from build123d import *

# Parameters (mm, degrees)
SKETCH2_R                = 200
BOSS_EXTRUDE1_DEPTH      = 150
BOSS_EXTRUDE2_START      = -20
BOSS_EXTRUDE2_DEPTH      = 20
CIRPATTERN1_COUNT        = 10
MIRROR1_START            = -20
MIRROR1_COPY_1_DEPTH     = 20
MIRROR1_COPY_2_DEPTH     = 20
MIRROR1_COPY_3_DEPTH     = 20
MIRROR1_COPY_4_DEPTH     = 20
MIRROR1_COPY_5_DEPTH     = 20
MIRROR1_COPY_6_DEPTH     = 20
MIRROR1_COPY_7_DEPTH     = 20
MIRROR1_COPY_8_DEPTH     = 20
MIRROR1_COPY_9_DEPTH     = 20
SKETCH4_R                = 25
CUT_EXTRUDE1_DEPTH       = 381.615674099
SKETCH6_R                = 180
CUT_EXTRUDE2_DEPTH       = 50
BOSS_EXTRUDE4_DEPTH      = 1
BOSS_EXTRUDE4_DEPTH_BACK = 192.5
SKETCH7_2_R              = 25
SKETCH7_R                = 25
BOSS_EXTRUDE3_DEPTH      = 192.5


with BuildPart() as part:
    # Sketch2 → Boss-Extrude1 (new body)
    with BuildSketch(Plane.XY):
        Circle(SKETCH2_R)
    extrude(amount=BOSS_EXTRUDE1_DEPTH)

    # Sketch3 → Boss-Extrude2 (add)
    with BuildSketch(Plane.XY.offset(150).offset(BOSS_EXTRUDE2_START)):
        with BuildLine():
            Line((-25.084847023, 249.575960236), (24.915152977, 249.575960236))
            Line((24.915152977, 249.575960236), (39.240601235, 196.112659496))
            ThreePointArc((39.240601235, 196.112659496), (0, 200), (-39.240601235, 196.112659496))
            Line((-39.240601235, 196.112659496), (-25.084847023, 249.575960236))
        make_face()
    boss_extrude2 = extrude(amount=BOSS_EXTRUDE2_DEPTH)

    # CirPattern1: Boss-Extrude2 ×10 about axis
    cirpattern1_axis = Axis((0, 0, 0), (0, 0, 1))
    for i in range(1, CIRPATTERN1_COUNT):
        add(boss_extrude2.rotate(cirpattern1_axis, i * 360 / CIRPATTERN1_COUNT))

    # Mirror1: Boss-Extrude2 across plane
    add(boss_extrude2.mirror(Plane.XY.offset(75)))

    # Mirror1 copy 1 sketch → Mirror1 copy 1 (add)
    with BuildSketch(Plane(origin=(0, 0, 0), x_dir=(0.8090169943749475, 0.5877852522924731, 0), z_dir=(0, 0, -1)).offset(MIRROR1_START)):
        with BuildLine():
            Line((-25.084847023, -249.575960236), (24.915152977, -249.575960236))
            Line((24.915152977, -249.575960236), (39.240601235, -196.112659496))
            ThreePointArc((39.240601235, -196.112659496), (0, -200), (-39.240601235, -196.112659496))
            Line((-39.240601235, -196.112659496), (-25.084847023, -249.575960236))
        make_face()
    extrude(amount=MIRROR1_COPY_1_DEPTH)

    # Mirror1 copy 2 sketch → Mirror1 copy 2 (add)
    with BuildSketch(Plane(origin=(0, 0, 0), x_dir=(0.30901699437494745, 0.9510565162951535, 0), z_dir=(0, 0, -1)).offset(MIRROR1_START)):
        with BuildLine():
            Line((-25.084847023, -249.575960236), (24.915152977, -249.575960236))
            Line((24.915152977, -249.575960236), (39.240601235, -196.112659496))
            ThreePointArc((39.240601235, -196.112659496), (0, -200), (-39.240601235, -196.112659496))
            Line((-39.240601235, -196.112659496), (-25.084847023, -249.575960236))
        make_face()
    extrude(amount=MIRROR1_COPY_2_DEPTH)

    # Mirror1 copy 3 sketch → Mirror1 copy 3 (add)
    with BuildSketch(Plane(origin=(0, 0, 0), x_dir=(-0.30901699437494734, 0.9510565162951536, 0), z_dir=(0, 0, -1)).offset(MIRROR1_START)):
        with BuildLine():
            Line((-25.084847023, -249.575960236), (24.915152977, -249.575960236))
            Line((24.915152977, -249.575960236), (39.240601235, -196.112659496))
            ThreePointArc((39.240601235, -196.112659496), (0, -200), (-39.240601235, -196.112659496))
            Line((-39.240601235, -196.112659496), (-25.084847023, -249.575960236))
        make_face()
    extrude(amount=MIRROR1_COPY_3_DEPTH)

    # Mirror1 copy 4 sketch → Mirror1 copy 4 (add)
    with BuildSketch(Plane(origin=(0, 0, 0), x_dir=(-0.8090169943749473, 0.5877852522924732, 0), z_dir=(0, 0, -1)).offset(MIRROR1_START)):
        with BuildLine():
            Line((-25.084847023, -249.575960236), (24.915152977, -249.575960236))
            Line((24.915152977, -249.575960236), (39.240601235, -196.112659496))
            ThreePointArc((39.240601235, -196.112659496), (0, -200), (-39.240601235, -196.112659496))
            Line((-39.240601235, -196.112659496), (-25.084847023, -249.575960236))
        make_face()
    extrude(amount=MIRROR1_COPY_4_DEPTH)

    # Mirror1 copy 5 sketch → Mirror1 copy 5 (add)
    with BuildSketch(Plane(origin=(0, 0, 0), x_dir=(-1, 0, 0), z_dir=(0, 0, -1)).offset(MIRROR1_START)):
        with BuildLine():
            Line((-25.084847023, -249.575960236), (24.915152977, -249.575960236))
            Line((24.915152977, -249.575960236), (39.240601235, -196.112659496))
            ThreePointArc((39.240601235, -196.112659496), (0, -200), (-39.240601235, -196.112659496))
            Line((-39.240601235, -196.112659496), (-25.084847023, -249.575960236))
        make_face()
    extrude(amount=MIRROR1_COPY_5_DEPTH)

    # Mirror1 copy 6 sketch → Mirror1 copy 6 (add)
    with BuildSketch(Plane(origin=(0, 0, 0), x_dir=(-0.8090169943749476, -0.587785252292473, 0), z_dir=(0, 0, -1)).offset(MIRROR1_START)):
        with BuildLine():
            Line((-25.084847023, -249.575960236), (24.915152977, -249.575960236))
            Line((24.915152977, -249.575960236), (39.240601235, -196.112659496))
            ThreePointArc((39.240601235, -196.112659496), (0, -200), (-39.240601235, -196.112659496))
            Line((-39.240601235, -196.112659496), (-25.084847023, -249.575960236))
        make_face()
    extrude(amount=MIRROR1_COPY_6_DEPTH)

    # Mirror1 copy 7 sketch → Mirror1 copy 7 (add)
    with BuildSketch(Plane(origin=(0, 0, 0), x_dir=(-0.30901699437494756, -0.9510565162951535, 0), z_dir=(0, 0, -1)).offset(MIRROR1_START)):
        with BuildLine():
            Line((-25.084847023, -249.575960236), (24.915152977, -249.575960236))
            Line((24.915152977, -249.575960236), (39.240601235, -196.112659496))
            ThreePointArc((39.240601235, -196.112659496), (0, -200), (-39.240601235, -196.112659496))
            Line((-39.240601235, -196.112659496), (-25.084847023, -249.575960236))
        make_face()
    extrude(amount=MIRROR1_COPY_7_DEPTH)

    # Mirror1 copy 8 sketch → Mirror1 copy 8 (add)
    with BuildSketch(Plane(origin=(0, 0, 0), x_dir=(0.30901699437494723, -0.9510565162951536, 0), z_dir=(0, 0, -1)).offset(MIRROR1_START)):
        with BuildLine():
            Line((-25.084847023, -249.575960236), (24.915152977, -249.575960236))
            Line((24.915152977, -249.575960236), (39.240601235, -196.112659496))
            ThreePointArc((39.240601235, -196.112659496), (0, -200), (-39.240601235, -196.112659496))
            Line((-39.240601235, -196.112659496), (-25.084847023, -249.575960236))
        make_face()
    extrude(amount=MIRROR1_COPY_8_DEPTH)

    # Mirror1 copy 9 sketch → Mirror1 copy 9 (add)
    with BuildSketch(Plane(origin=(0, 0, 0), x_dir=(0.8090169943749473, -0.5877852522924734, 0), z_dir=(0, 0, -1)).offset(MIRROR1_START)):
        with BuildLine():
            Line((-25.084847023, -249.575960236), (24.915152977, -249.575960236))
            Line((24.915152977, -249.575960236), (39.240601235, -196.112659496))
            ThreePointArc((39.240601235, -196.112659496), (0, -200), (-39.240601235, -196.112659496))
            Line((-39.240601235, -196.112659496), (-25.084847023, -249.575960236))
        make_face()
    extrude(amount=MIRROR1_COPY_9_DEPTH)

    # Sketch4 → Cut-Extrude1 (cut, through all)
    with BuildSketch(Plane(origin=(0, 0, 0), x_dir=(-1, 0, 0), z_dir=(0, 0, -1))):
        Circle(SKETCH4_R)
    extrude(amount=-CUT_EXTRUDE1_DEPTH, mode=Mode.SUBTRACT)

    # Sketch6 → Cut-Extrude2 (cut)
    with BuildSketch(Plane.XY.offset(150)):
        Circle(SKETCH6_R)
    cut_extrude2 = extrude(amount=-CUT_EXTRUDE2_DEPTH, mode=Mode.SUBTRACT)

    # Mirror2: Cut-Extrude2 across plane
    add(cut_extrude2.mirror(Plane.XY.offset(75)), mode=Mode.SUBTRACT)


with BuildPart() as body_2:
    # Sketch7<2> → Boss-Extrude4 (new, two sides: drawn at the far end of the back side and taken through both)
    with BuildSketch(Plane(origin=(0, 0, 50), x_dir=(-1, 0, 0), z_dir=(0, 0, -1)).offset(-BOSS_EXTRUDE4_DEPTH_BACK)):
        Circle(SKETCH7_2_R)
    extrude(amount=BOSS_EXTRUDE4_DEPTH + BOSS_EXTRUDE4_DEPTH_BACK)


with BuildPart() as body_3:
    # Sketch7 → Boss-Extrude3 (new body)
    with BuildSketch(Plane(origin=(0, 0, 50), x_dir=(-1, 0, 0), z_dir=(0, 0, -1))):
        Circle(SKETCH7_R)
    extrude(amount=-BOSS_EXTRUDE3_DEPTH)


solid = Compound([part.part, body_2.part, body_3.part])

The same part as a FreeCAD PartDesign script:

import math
import FreeCAD as App
import Part
import Sketcher
Q = App.Units.Quantity

doc = App.newDocument("Part")
body = doc.addObject("PartDesign::Body", "Body")

sketch1 = body.newObject("Sketcher::SketchObject", "Sketch")
sketch1.AttachmentSupport = (doc.getObject("XY_Plane"), [""])
sketch1.MapMode = "FlatFace"
sketch1.addGeometry(Part.Circle(App.Vector(0, 0, 0), App.Vector(0, 0, 1), 200), False)
sketch1.addConstraint([
    Sketcher.Constraint("Coincident", 0, 3, -1, 1),
    Sketcher.Constraint("Diameter", 0, 400.0),
])
pad1 = body.newObject("PartDesign::Pad", "Pad")
pad1.Profile = sketch1
pad1.Length = 150

sketch2 = body.newObject("Sketcher::SketchObject", "Sketch001")
sketch2.AttachmentSupport = (doc.getObject("XY_Plane"), [""])
sketch2.MapMode = "FlatFace"
sketch2.AttachmentOffset = App.Placement(App.Vector(0, 0, 130), App.Rotation())
sketch2.addGeometry([
    Part.LineSegment(App.Vector(25, 250, 0), App.Vector(-25, 250, 0)),
    Part.LineSegment(App.Vector(-25, 250, 0), App.Vector(-39, 196, 0)),
    Part.ArcOfCircle(Part.Circle(App.Vector(0, 0, 0), App.Vector(0, 0, 1), 200), math.radians(79), math.radians(101)),
    Part.LineSegment(App.Vector(39, 196, 0), App.Vector(25, 250, 0)),
], False)
sketch2.addConstraint([
    Sketcher.Constraint("Coincident", 0, 2, 1, 1),
    Sketcher.Constraint("Coincident", 1, 2, 2, 2),
    Sketcher.Constraint("Coincident", 2, 1, 3, 1),
    Sketcher.Constraint("Coincident", 3, 2, 0, 1),
    Sketcher.Constraint("Horizontal", 0),
    Sketcher.Constraint("Coincident", 2, 3, -1, 1),
    Sketcher.Constraint("Horizontal", 1, 2, 2, 1),
    Sketcher.Constraint("Radius", 2, 200.0),
    Sketcher.Constraint("DistanceX", 0, 2, 0, 1, 50.0),
    Sketcher.Constraint("Angle", 3, Q("105 deg")),
    Sketcher.Constraint("DistanceX", 1, 2, -1, 1, 39.240601),
    Sketcher.Constraint("DistanceY", 1, 2, 0, 2, 53.463301),
])
pad2 = body.newObject("PartDesign::Pad", "Pad001")
pad2.Profile = sketch2
pad2.Length = 20
doc.recompute()

polarpattern = body.newObject("PartDesign::PolarPattern", "PolarPattern")
polarpattern.Originals = [pad2]
polarpattern.Axis = (doc.getObject("Z_Axis"), [""])
polarpattern.Angle = 360
polarpattern.Occurrences = 10
body.Tip = polarpattern
doc.recompute()

datumplane = body.newObject("PartDesign::Plane", "DatumPlane")
datumplane.AttachmentSupport = (doc.getObject("XY_Plane"), [""])
datumplane.MapMode = "FlatFace"
datumplane.AttachmentOffset = App.Placement(App.Vector(0, 0, 75), App.Rotation())
mirrored = body.newObject("PartDesign::Mirrored", "Mirrored")
mirrored.Originals = [pad2]
mirrored.MirrorPlane = (datumplane, [""])
body.Tip = mirrored

sketch3 = body.newObject("Sketcher::SketchObject", "Sketch002")
sketch3.AttachmentSupport = (doc.getObject("XY_Plane"), [""])
sketch3.MapMode = "FlatFace"
sketch3.AttachmentOffset = App.Placement(App.Vector(0, 0, 20), App.Rotation())
sketch3.addGeometry([
    Part.LineSegment(App.Vector(-167, 187, 0), App.Vector(-127, 217, 0)),
    Part.LineSegment(App.Vector(-127, 217, 0), App.Vector(-84, 182, 0)),
    Part.ArcOfCircle(Part.Circle(App.Vector(0, 0, 0), App.Vector(0, 0, 1), 200), math.radians(115), math.radians(137)),
    Part.LineSegment(App.Vector(-147, 136, 0), App.Vector(-167, 187, 0)),
], False)
sketch3.addConstraint([
    Sketcher.Constraint("Coincident", 0, 2, 1, 1),
    Sketcher.Constraint("Coincident", 1, 2, 2, 1),
    Sketcher.Constraint("Coincident", 2, 2, 3, 1),
    Sketcher.Constraint("Coincident", 3, 2, 0, 1),
    Sketcher.Constraint("Coincident", 2, 3, -1, 1),
    Sketcher.Constraint("Radius", 2, 200.0),
    Sketcher.Constraint("Angle", 0, Q("36 deg")),
    Sketcher.Constraint("Angle", 1, Q("-39 deg")),
    Sketcher.Constraint("Distance", 0, 50.0),
    Sketcher.Constraint("Distance", 1, 55.349282),
    Sketcher.Constraint("DistanceY", -1, 1, 1, 2, 181.723521),
    Sketcher.Constraint("Distance", 3, 55.305605),
])
pad3 = body.newObject("PartDesign::Pad", "Pad002")
pad3.Profile = sketch3
pad3.Length = 20
pad3.Reversed = True

sketch4 = body.newObject("Sketcher::SketchObject", "Sketch003")
sketch4.AttachmentSupport = (doc.getObject("XY_Plane"), [""])
sketch4.MapMode = "FlatFace"
sketch4.AttachmentOffset = App.Placement(App.Vector(0, 0, 20), App.Rotation())
sketch4.addGeometry([
    Part.LineSegment(App.Vector(-245, 53, 0), App.Vector(-230, 101, 0)),
    Part.LineSegment(App.Vector(-230, 101, 0), App.Vector(-174, 98, 0)),
    Part.ArcOfCircle(Part.Circle(App.Vector(0, 0, 0), App.Vector(0, 0, 1), 200), math.radians(151), math.radians(173)),
    Part.LineSegment(App.Vector(-199, 23, 0), App.Vector(-245, 53, 0)),
], False)
sketch4.addConstraint([
    Sketcher.Constraint("Coincident", 0, 2, 1, 1),
    Sketcher.Constraint("Coincident", 1, 2, 2, 1),
    Sketcher.Constraint("Coincident", 2, 2, 3, 1),
    Sketcher.Constraint("Coincident", 3, 2, 0, 1),
    Sketcher.Constraint("Coincident", 2, 3, -1, 1),
    Sketcher.Constraint("Radius", 2, 200.0),
    Sketcher.Constraint("Angle", 0, Q("72 deg")),
    Sketcher.Constraint("Angle", 1, Q("-3 deg")),
    Sketcher.Constraint("Distance", 0, 50.0),
    Sketcher.Constraint("Distance", 1, 55.349282),
    Sketcher.Constraint("DistanceY", -1, 1, 0, 2, 100.818932),
    Sketcher.Constraint("DistanceY", 2, 2, 1, 2, 74.640059),
])
pad4 = body.newObject("PartDesign::Pad", "Pad003")
pad4.Profile = sketch4
pad4.Length = 20
pad4.Reversed = True

sketch5 = body.newObject("Sketcher::SketchObject", "Sketch004")
sketch5.AttachmentSupport = (doc.getObject("XY_Plane"), [""])
sketch5.MapMode = "FlatFace"
sketch5.AttachmentOffset = App.Placement(App.Vector(0, 0, 20), App.Rotation())
sketch5.addGeometry([
    Part.LineSegment(App.Vector(-230, -101, 0), App.Vector(-245, -53, 0)),
    Part.LineSegment(App.Vector(-245, -53, 0), App.Vector(-199, -23, 0)),
    Part.ArcOfCircle(Part.Circle(App.Vector(0, 0, 0), App.Vector(0, 0, 1), 200), math.radians(-173), math.radians(-151)),
    Part.LineSegment(App.Vector(-174, -98, 0), App.Vector(-230, -101, 0)),
], False)
sketch5.addConstraint([
    Sketcher.Constraint("Coincident", 0, 2, 1, 1),
    Sketcher.Constraint("Coincident", 1, 2, 2, 1),
    Sketcher.Constraint("Coincident", 2, 2, 3, 1),
    Sketcher.Constraint("Coincident", 3, 2, 0, 1),
    Sketcher.Constraint("Coincident", 2, 3, -1, 1),
    Sketcher.Constraint("Radius", 2, 200.0),
    Sketcher.Constraint("Angle", 0, Q("108 deg")),
    Sketcher.Constraint("Angle", 1, Q("33 deg")),
    Sketcher.Constraint("Distance", 0, 50.0),
    Sketcher.Constraint("DistanceX", 3, 2, -1, 1, 229.609199),
    Sketcher.Constraint("Distance", 1, 55.349282),
    Sketcher.Constraint("DistanceX", 2, 2, -1, 1, 174.38821),
])
pad5 = body.newObject("PartDesign::Pad", "Pad004")
pad5.Profile = sketch5
pad5.Length = 20
pad5.Reversed = True

sketch6 = body.newObject("Sketcher::SketchObject", "Sketch005")
sketch6.AttachmentSupport = (doc.getObject("XY_Plane"), [""])
sketch6.MapMode = "FlatFace"
sketch6.AttachmentOffset = App.Placement(App.Vector(0, 0, 20), App.Rotation())
sketch6.addGeometry([
    Part.LineSegment(App.Vector(-126, -217, 0), App.Vector(-167, -187, 0)),
    Part.LineSegment(App.Vector(-167, -187, 0), App.Vector(-147, -136, 0)),
    Part.ArcOfCircle(Part.Circle(App.Vector(0, 0, 0), App.Vector(0, 0, 1), 200), math.radians(-137), math.radians(-115)),
    Part.LineSegment(App.Vector(-84, -182, 0), App.Vector(-126, -217, 0)),
], False)
sketch6.addConstraint([
    Sketcher.Constraint("Coincident", 0, 2, 1, 1),
    Sketcher.Constraint("Coincident", 1, 2, 2, 1),
    Sketcher.Constraint("Coincident", 2, 2, 3, 1),
    Sketcher.Constraint("Coincident", 3, 2, 0, 1),
    Sketcher.Constraint("Coincident", 2, 3, -1, 1),
    Sketcher.Constraint("Radius", 2, 200.0),
    Sketcher.Constraint("Angle", 0, Q("144 deg")),
    Sketcher.Constraint("Angle", 1, Q("69 deg")),
    Sketcher.Constraint("Distance", 0, 50.0),
    Sketcher.Constraint("DistanceX", 3, 2, -1, 1, 126.403001),
    Sketcher.Constraint("Distance", 1, 55.349282),
    Sketcher.Constraint("DistanceY", 2, 2, -1, 1, 181.723521),
])
pad6 = body.newObject("PartDesign::Pad", "Pad005")
pad6.Profile = sketch6
pad6.Length = 20
pad6.Reversed = True

sketch7 = body.newObject("Sketcher::SketchObject", "Sketch006")
sketch7.AttachmentSupport = (doc.getObject("XY_Plane"), [""])
sketch7.MapMode = "FlatFace"
sketch7.AttachmentOffset = App.Placement(App.Vector(0, 0, 20), App.Rotation())
sketch7.addGeometry([
    Part.LineSegment(App.Vector(25, -250, 0), App.Vector(-25, -250, 0)),
    Part.LineSegment(App.Vector(-25, -250, 0), App.Vector(-39, -196, 0)),
    Part.ArcOfCircle(Part.Circle(App.Vector(0, 0, 0), App.Vector(0, 0, 1), 200), math.radians(-101), math.radians(-79)),
    Part.LineSegment(App.Vector(39, -196, 0), App.Vector(25, -250, 0)),
], False)
sketch7.addConstraint([
    Sketcher.Constraint("Coincident", 0, 2, 1, 1),
    Sketcher.Constraint("Coincident", 1, 2, 2, 1),
    Sketcher.Constraint("Coincident", 2, 2, 3, 1),
    Sketcher.Constraint("Coincident", 3, 2, 0, 1),
    Sketcher.Constraint("Horizontal", 0),
    Sketcher.Constraint("Coincident", 2, 3, -1, 1),
    Sketcher.Constraint("Horizontal", 1, 2, 2, 2),
    Sketcher.Constraint("Radius", 2, 200.0),
    Sketcher.Constraint("DistanceX", 0, 2, 0, 1, 50.0),
    Sketcher.Constraint("Angle", 1, Q("105 deg")),
    Sketcher.Constraint("DistanceX", 1, 2, -1, 1, 39.240601),
    Sketcher.Constraint("DistanceY", 0, 2, 1, 2, 53.463301),
])
pad7 = body.newObject("PartDesign::Pad", "Pad006")
pad7.Profile = sketch7
pad7.Length = 20
pad7.Reversed = True

sketch8 = body.newObject("Sketcher::SketchObject", "Sketch007")
sketch8.AttachmentSupport = (doc.getObject("XY_Plane"), [""])
sketch8.MapMode = "FlatFace"
sketch8.AttachmentOffset = App.Placement(App.Vector(0, 0, 20), App.Rotation())
sketch8.addGeometry([
    Part.LineSegment(App.Vector(167, -187, 0), App.Vector(127, -217, 0)),
    Part.LineSegment(App.Vector(127, -217, 0), App.Vector(84, -182, 0)),
    Part.ArcOfCircle(Part.Circle(App.Vector(0, 0, 0), App.Vector(0, 0, 1), 200), math.radians(-65), math.radians(-43)),
    Part.LineSegment(App.Vector(147, -136, 0), App.Vector(167, -187, 0)),
], False)
sketch8.addConstraint([
    Sketcher.Constraint("Coincident", 0, 2, 1, 1),
    Sketcher.Constraint("Coincident", 1, 2, 2, 1),
    Sketcher.Constraint("Coincident", 2, 2, 3, 1),
    Sketcher.Constraint("Coincident", 3, 2, 0, 1),
    Sketcher.Constraint("Coincident", 2, 3, -1, 1),
    Sketcher.Constraint("Radius", 2, 200.0),
    Sketcher.Constraint("Angle", 0, Q("-144 deg")),
    Sketcher.Constraint("Angle", 1, Q("141 deg")),
    Sketcher.Constraint("Distance", 0, 50.0),
    Sketcher.Constraint("Distance", 1, 55.349282),
    Sketcher.Constraint("DistanceY", 1, 2, -1, 1, 181.723521),
    Sketcher.Constraint("Distance", 3, 55.305605),
])
pad8 = body.newObject("PartDesign::Pad", "Pad007")
pad8.Profile = sketch8
pad8.Length = 20
pad8.Reversed = True

sketch9 = body.newObject("Sketcher::SketchObject", "Sketch008")
sketch9.AttachmentSupport = (doc.getObject("XY_Plane"), [""])
sketch9.MapMode = "FlatFace"
sketch9.AttachmentOffset = App.Placement(App.Vector(0, 0, 20), App.Rotation())
sketch9.addGeometry([
    Part.LineSegment(App.Vector(245, -53, 0), App.Vector(230, -101, 0)),
    Part.LineSegment(App.Vector(230, -101, 0), App.Vector(174, -98, 0)),
    Part.ArcOfCircle(Part.Circle(App.Vector(0, 0, 0), App.Vector(0, 0, 1), 200), math.radians(-29), math.radians(-7)),
    Part.LineSegment(App.Vector(199, -23, 0), App.Vector(245, -53, 0)),
], False)
sketch9.addConstraint([
    Sketcher.Constraint("Coincident", 0, 2, 1, 1),
    Sketcher.Constraint("Coincident", 1, 2, 2, 1),
    Sketcher.Constraint("Coincident", 2, 2, 3, 1),
    Sketcher.Constraint("Coincident", 3, 2, 0, 1),
    Sketcher.Constraint("Coincident", 2, 3, -1, 1),
    Sketcher.Constraint("Radius", 2, 200.0),
    Sketcher.Constraint("Angle", 0, Q("-108 deg")),
    Sketcher.Constraint("Angle", 1, Q("177 deg")),
    Sketcher.Constraint("Distance", 0, 50.0),
    Sketcher.Constraint("Distance", 1, 55.349282),
    Sketcher.Constraint("DistanceY", 0, 2, -1, 1, 100.818932),
    Sketcher.Constraint("DistanceY", 1, 2, 2, 2, 74.640059),
])
pad9 = body.newObject("PartDesign::Pad", "Pad008")
pad9.Profile = sketch9
pad9.Length = 20
pad9.Reversed = True

sketch10 = body.newObject("Sketcher::SketchObject", "Sketch009")
sketch10.AttachmentSupport = (doc.getObject("XY_Plane"), [""])
sketch10.MapMode = "FlatFace"
sketch10.AttachmentOffset = App.Placement(App.Vector(0, 0, 20), App.Rotation())
sketch10.addGeometry([
    Part.LineSegment(App.Vector(230, 101, 0), App.Vector(245, 53, 0)),
    Part.LineSegment(App.Vector(245, 53, 0), App.Vector(199, 23, 0)),
    Part.ArcOfCircle(Part.Circle(App.Vector(0, 0, 0), App.Vector(0, 0, 1), 200), math.radians(7), math.radians(29)),
    Part.LineSegment(App.Vector(174, 98, 0), App.Vector(230, 101, 0)),
], False)
sketch10.addConstraint([
    Sketcher.Constraint("Coincident", 0, 2, 1, 1),
    Sketcher.Constraint("Coincident", 1, 2, 2, 1),
    Sketcher.Constraint("Coincident", 2, 2, 3, 1),
    Sketcher.Constraint("Coincident", 3, 2, 0, 1),
    Sketcher.Constraint("Coincident", 2, 3, -1, 1),
    Sketcher.Constraint("Radius", 2, 200.0),
    Sketcher.Constraint("Angle", 0, Q("-72 deg")),
    Sketcher.Constraint("Angle", 1, Q("-147 deg")),
    Sketcher.Constraint("Distance", 0, 50.0),
    Sketcher.Constraint("DistanceX", -1, 1, 3, 2, 229.609199),
    Sketcher.Constraint("Distance", 1, 55.349282),
    Sketcher.Constraint("DistanceX", -1, 1, 2, 2, 174.38821),
])
pad10 = body.newObject("PartDesign::Pad", "Pad009")
pad10.Profile = sketch10
pad10.Length = 20
pad10.Reversed = True

sketch11 = body.newObject("Sketcher::SketchObject", "Sketch010")
sketch11.AttachmentSupport = (doc.getObject("XY_Plane"), [""])
sketch11.MapMode = "FlatFace"
sketch11.AttachmentOffset = App.Placement(App.Vector(0, 0, 20), App.Rotation())
sketch11.addGeometry([
    Part.LineSegment(App.Vector(126, 217, 0), App.Vector(167, 187, 0)),
    Part.LineSegment(App.Vector(167, 187, 0), App.Vector(147, 136, 0)),
    Part.ArcOfCircle(Part.Circle(App.Vector(0, 0, 0), App.Vector(0, 0, 1), 200), math.radians(43), math.radians(65)),
    Part.LineSegment(App.Vector(84, 182, 0), App.Vector(126, 217, 0)),
], False)
sketch11.addConstraint([
    Sketcher.Constraint("Coincident", 0, 2, 1, 1),
    Sketcher.Constraint("Coincident", 1, 2, 2, 1),
    Sketcher.Constraint("Coincident", 2, 2, 3, 1),
    Sketcher.Constraint("Coincident", 3, 2, 0, 1),
    Sketcher.Constraint("Coincident", 2, 3, -1, 1),
    Sketcher.Constraint("Radius", 2, 200.0),
    Sketcher.Constraint("Angle", 0, Q("-36 deg")),
    Sketcher.Constraint("Angle", 1, Q("-111 deg")),
    Sketcher.Constraint("Distance", 0, 50.0),
    Sketcher.Constraint("DistanceX", -1, 1, 3, 2, 126.403001),
    Sketcher.Constraint("Distance", 1, 55.349282),
    Sketcher.Constraint("DistanceY", -1, 1, 2, 2, 181.723521),
])
pad11 = body.newObject("PartDesign::Pad", "Pad010")
pad11.Profile = sketch11
pad11.Length = 20
pad11.Reversed = True

sketch12 = body.newObject("Sketcher::SketchObject", "Sketch011")
sketch12.AttachmentSupport = (doc.getObject("XY_Plane"), [""])
sketch12.MapMode = "FlatFace"
sketch12.addGeometry(Part.Circle(App.Vector(0, 0, 0), App.Vector(0, 0, 1), 25), False)
sketch12.addConstraint([
    Sketcher.Constraint("Coincident", 0, 3, -1, 1),
    Sketcher.Constraint("Diameter", 0, 50.0),
])
pocket1 = body.newObject("PartDesign::Pocket", "Pocket")
pocket1.Profile = sketch12
pocket1.Type = "ThroughAll"
pocket1.Reversed = True

sketch13 = body.newObject("Sketcher::SketchObject", "Sketch012")
sketch13.AttachmentSupport = (doc.getObject("XY_Plane"), [""])
sketch13.MapMode = "FlatFace"
sketch13.AttachmentOffset = App.Placement(App.Vector(0, 0, 150), App.Rotation())
sketch13.addGeometry(Part.Circle(App.Vector(0, 0, 0), App.Vector(0, 0, 1), 180), False)
sketch13.addConstraint([
    Sketcher.Constraint("Coincident", 0, 3, -1, 1),
    Sketcher.Constraint("Diameter", 0, 360.0),
])
pocket2 = body.newObject("PartDesign::Pocket", "Pocket001")
pocket2.Profile = sketch13
pocket2.Length = 50
doc.recompute()

datumplane2 = body.newObject("PartDesign::Plane", "DatumPlane001")
datumplane2.AttachmentSupport = (doc.getObject("XY_Plane"), [""])
datumplane2.MapMode = "FlatFace"
datumplane2.AttachmentOffset = App.Placement(App.Vector(0, 0, 75), App.Rotation())
mirrored2 = body.newObject("PartDesign::Mirrored", "Mirrored001")
mirrored2.Originals = [pocket2]
mirrored2.MirrorPlane = (datumplane2, [""])
body.Tip = mirrored2
body2 = doc.addObject("PartDesign::Body", "Body001")

sketch14 = body2.newObject("Sketcher::SketchObject", "Sketch013")
sketch14.AttachmentSupport = (doc.getObject("XY_Plane001"), [""])
sketch14.MapMode = "FlatFace"
sketch14.AttachmentOffset = App.Placement(App.Vector(0, 0, 50), App.Rotation())
sketch14.addGeometry(Part.Circle(App.Vector(0, 0, 0), App.Vector(0, 0, 1), 25), False)
sketch14.addConstraint([
    Sketcher.Constraint("Coincident", 0, 3, -1, 1),
    Sketcher.Constraint("Diameter", 0, 50.0),
])
pad12 = body2.newObject("PartDesign::Pad", "Pad011")
pad12.Profile = sketch14
pad12.Type = "TwoLengths"
pad12.Length = 1
pad12.Length2 = 192.5
pad12.Reversed = True
body3 = doc.addObject("PartDesign::Body", "Body002")

sketch15 = body3.newObject("Sketcher::SketchObject", "Sketch014")
sketch15.AttachmentSupport = (doc.getObject("XY_Plane002"), [""])
sketch15.MapMode = "FlatFace"
sketch15.AttachmentOffset = App.Placement(App.Vector(0, 0, 50), App.Rotation())
sketch15.addGeometry(Part.Circle(App.Vector(0, 0, 0), App.Vector(0, 0, 1), 25), False)
sketch15.addConstraint([
    Sketcher.Constraint("Coincident", 0, 3, -1, 1),
    Sketcher.Constraint("Diameter", 0, 50.0),
])
pad13 = body3.newObject("PartDesign::Pad", "Pad012")
pad13.Profile = sketch15
pad13.Length = 192.5

doc.recompute()
